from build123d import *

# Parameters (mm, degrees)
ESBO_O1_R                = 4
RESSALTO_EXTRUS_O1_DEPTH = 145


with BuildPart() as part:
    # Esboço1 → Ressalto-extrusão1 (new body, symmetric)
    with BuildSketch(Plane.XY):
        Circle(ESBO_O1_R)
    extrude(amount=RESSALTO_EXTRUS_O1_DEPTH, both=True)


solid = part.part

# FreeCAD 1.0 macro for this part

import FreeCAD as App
import Part
import Sketcher

V = App.Vector
Q = App.Units.Quantity

doc = App.newDocument("Part")
params = doc.addObject("Spreadsheet::Sheet", "Params")
for row, (alias, value) in enumerate([
    ("sketch1_diameter", "8 mm"),
    ("pad1_length", "290 mm"),
], start=1):
    params.set(f"A{row}", alias)
    params.set(f"B{row}", "=" + value)
    params.setAlias(f"B{row}", alias)

body = doc.addObject("PartDesign::Body", "Body")

sketch1 = doc.addObject("Sketcher::SketchObject", "Sketch")
body.addObject(sketch1)
sketch1.AttachmentSupport = (doc.XY_Plane, [""])
sketch1.MapMode = "FlatFace"
sketch1.addGeometry(Part.Circle(V(0, 0, 0), V(0, 0, 1), 4), False)
sketch1.addConstraint(Sketcher.Constraint("Coincident", 0, 3, -1, 1))
sketch1.addConstraint(Sketcher.Constraint("Diameter", 0, Q("8 mm")))
sketch1.setExpression("Constraints[1]", "Params.sketch1_diameter")
pad1 = doc.addObject("PartDesign::Pad", "Pad")
body.addObject(pad1)
pad1.Profile = sketch1
pad1.setExpression("Length", "Params.pad1_length")
pad1.Midplane = True

doc.recompute()
